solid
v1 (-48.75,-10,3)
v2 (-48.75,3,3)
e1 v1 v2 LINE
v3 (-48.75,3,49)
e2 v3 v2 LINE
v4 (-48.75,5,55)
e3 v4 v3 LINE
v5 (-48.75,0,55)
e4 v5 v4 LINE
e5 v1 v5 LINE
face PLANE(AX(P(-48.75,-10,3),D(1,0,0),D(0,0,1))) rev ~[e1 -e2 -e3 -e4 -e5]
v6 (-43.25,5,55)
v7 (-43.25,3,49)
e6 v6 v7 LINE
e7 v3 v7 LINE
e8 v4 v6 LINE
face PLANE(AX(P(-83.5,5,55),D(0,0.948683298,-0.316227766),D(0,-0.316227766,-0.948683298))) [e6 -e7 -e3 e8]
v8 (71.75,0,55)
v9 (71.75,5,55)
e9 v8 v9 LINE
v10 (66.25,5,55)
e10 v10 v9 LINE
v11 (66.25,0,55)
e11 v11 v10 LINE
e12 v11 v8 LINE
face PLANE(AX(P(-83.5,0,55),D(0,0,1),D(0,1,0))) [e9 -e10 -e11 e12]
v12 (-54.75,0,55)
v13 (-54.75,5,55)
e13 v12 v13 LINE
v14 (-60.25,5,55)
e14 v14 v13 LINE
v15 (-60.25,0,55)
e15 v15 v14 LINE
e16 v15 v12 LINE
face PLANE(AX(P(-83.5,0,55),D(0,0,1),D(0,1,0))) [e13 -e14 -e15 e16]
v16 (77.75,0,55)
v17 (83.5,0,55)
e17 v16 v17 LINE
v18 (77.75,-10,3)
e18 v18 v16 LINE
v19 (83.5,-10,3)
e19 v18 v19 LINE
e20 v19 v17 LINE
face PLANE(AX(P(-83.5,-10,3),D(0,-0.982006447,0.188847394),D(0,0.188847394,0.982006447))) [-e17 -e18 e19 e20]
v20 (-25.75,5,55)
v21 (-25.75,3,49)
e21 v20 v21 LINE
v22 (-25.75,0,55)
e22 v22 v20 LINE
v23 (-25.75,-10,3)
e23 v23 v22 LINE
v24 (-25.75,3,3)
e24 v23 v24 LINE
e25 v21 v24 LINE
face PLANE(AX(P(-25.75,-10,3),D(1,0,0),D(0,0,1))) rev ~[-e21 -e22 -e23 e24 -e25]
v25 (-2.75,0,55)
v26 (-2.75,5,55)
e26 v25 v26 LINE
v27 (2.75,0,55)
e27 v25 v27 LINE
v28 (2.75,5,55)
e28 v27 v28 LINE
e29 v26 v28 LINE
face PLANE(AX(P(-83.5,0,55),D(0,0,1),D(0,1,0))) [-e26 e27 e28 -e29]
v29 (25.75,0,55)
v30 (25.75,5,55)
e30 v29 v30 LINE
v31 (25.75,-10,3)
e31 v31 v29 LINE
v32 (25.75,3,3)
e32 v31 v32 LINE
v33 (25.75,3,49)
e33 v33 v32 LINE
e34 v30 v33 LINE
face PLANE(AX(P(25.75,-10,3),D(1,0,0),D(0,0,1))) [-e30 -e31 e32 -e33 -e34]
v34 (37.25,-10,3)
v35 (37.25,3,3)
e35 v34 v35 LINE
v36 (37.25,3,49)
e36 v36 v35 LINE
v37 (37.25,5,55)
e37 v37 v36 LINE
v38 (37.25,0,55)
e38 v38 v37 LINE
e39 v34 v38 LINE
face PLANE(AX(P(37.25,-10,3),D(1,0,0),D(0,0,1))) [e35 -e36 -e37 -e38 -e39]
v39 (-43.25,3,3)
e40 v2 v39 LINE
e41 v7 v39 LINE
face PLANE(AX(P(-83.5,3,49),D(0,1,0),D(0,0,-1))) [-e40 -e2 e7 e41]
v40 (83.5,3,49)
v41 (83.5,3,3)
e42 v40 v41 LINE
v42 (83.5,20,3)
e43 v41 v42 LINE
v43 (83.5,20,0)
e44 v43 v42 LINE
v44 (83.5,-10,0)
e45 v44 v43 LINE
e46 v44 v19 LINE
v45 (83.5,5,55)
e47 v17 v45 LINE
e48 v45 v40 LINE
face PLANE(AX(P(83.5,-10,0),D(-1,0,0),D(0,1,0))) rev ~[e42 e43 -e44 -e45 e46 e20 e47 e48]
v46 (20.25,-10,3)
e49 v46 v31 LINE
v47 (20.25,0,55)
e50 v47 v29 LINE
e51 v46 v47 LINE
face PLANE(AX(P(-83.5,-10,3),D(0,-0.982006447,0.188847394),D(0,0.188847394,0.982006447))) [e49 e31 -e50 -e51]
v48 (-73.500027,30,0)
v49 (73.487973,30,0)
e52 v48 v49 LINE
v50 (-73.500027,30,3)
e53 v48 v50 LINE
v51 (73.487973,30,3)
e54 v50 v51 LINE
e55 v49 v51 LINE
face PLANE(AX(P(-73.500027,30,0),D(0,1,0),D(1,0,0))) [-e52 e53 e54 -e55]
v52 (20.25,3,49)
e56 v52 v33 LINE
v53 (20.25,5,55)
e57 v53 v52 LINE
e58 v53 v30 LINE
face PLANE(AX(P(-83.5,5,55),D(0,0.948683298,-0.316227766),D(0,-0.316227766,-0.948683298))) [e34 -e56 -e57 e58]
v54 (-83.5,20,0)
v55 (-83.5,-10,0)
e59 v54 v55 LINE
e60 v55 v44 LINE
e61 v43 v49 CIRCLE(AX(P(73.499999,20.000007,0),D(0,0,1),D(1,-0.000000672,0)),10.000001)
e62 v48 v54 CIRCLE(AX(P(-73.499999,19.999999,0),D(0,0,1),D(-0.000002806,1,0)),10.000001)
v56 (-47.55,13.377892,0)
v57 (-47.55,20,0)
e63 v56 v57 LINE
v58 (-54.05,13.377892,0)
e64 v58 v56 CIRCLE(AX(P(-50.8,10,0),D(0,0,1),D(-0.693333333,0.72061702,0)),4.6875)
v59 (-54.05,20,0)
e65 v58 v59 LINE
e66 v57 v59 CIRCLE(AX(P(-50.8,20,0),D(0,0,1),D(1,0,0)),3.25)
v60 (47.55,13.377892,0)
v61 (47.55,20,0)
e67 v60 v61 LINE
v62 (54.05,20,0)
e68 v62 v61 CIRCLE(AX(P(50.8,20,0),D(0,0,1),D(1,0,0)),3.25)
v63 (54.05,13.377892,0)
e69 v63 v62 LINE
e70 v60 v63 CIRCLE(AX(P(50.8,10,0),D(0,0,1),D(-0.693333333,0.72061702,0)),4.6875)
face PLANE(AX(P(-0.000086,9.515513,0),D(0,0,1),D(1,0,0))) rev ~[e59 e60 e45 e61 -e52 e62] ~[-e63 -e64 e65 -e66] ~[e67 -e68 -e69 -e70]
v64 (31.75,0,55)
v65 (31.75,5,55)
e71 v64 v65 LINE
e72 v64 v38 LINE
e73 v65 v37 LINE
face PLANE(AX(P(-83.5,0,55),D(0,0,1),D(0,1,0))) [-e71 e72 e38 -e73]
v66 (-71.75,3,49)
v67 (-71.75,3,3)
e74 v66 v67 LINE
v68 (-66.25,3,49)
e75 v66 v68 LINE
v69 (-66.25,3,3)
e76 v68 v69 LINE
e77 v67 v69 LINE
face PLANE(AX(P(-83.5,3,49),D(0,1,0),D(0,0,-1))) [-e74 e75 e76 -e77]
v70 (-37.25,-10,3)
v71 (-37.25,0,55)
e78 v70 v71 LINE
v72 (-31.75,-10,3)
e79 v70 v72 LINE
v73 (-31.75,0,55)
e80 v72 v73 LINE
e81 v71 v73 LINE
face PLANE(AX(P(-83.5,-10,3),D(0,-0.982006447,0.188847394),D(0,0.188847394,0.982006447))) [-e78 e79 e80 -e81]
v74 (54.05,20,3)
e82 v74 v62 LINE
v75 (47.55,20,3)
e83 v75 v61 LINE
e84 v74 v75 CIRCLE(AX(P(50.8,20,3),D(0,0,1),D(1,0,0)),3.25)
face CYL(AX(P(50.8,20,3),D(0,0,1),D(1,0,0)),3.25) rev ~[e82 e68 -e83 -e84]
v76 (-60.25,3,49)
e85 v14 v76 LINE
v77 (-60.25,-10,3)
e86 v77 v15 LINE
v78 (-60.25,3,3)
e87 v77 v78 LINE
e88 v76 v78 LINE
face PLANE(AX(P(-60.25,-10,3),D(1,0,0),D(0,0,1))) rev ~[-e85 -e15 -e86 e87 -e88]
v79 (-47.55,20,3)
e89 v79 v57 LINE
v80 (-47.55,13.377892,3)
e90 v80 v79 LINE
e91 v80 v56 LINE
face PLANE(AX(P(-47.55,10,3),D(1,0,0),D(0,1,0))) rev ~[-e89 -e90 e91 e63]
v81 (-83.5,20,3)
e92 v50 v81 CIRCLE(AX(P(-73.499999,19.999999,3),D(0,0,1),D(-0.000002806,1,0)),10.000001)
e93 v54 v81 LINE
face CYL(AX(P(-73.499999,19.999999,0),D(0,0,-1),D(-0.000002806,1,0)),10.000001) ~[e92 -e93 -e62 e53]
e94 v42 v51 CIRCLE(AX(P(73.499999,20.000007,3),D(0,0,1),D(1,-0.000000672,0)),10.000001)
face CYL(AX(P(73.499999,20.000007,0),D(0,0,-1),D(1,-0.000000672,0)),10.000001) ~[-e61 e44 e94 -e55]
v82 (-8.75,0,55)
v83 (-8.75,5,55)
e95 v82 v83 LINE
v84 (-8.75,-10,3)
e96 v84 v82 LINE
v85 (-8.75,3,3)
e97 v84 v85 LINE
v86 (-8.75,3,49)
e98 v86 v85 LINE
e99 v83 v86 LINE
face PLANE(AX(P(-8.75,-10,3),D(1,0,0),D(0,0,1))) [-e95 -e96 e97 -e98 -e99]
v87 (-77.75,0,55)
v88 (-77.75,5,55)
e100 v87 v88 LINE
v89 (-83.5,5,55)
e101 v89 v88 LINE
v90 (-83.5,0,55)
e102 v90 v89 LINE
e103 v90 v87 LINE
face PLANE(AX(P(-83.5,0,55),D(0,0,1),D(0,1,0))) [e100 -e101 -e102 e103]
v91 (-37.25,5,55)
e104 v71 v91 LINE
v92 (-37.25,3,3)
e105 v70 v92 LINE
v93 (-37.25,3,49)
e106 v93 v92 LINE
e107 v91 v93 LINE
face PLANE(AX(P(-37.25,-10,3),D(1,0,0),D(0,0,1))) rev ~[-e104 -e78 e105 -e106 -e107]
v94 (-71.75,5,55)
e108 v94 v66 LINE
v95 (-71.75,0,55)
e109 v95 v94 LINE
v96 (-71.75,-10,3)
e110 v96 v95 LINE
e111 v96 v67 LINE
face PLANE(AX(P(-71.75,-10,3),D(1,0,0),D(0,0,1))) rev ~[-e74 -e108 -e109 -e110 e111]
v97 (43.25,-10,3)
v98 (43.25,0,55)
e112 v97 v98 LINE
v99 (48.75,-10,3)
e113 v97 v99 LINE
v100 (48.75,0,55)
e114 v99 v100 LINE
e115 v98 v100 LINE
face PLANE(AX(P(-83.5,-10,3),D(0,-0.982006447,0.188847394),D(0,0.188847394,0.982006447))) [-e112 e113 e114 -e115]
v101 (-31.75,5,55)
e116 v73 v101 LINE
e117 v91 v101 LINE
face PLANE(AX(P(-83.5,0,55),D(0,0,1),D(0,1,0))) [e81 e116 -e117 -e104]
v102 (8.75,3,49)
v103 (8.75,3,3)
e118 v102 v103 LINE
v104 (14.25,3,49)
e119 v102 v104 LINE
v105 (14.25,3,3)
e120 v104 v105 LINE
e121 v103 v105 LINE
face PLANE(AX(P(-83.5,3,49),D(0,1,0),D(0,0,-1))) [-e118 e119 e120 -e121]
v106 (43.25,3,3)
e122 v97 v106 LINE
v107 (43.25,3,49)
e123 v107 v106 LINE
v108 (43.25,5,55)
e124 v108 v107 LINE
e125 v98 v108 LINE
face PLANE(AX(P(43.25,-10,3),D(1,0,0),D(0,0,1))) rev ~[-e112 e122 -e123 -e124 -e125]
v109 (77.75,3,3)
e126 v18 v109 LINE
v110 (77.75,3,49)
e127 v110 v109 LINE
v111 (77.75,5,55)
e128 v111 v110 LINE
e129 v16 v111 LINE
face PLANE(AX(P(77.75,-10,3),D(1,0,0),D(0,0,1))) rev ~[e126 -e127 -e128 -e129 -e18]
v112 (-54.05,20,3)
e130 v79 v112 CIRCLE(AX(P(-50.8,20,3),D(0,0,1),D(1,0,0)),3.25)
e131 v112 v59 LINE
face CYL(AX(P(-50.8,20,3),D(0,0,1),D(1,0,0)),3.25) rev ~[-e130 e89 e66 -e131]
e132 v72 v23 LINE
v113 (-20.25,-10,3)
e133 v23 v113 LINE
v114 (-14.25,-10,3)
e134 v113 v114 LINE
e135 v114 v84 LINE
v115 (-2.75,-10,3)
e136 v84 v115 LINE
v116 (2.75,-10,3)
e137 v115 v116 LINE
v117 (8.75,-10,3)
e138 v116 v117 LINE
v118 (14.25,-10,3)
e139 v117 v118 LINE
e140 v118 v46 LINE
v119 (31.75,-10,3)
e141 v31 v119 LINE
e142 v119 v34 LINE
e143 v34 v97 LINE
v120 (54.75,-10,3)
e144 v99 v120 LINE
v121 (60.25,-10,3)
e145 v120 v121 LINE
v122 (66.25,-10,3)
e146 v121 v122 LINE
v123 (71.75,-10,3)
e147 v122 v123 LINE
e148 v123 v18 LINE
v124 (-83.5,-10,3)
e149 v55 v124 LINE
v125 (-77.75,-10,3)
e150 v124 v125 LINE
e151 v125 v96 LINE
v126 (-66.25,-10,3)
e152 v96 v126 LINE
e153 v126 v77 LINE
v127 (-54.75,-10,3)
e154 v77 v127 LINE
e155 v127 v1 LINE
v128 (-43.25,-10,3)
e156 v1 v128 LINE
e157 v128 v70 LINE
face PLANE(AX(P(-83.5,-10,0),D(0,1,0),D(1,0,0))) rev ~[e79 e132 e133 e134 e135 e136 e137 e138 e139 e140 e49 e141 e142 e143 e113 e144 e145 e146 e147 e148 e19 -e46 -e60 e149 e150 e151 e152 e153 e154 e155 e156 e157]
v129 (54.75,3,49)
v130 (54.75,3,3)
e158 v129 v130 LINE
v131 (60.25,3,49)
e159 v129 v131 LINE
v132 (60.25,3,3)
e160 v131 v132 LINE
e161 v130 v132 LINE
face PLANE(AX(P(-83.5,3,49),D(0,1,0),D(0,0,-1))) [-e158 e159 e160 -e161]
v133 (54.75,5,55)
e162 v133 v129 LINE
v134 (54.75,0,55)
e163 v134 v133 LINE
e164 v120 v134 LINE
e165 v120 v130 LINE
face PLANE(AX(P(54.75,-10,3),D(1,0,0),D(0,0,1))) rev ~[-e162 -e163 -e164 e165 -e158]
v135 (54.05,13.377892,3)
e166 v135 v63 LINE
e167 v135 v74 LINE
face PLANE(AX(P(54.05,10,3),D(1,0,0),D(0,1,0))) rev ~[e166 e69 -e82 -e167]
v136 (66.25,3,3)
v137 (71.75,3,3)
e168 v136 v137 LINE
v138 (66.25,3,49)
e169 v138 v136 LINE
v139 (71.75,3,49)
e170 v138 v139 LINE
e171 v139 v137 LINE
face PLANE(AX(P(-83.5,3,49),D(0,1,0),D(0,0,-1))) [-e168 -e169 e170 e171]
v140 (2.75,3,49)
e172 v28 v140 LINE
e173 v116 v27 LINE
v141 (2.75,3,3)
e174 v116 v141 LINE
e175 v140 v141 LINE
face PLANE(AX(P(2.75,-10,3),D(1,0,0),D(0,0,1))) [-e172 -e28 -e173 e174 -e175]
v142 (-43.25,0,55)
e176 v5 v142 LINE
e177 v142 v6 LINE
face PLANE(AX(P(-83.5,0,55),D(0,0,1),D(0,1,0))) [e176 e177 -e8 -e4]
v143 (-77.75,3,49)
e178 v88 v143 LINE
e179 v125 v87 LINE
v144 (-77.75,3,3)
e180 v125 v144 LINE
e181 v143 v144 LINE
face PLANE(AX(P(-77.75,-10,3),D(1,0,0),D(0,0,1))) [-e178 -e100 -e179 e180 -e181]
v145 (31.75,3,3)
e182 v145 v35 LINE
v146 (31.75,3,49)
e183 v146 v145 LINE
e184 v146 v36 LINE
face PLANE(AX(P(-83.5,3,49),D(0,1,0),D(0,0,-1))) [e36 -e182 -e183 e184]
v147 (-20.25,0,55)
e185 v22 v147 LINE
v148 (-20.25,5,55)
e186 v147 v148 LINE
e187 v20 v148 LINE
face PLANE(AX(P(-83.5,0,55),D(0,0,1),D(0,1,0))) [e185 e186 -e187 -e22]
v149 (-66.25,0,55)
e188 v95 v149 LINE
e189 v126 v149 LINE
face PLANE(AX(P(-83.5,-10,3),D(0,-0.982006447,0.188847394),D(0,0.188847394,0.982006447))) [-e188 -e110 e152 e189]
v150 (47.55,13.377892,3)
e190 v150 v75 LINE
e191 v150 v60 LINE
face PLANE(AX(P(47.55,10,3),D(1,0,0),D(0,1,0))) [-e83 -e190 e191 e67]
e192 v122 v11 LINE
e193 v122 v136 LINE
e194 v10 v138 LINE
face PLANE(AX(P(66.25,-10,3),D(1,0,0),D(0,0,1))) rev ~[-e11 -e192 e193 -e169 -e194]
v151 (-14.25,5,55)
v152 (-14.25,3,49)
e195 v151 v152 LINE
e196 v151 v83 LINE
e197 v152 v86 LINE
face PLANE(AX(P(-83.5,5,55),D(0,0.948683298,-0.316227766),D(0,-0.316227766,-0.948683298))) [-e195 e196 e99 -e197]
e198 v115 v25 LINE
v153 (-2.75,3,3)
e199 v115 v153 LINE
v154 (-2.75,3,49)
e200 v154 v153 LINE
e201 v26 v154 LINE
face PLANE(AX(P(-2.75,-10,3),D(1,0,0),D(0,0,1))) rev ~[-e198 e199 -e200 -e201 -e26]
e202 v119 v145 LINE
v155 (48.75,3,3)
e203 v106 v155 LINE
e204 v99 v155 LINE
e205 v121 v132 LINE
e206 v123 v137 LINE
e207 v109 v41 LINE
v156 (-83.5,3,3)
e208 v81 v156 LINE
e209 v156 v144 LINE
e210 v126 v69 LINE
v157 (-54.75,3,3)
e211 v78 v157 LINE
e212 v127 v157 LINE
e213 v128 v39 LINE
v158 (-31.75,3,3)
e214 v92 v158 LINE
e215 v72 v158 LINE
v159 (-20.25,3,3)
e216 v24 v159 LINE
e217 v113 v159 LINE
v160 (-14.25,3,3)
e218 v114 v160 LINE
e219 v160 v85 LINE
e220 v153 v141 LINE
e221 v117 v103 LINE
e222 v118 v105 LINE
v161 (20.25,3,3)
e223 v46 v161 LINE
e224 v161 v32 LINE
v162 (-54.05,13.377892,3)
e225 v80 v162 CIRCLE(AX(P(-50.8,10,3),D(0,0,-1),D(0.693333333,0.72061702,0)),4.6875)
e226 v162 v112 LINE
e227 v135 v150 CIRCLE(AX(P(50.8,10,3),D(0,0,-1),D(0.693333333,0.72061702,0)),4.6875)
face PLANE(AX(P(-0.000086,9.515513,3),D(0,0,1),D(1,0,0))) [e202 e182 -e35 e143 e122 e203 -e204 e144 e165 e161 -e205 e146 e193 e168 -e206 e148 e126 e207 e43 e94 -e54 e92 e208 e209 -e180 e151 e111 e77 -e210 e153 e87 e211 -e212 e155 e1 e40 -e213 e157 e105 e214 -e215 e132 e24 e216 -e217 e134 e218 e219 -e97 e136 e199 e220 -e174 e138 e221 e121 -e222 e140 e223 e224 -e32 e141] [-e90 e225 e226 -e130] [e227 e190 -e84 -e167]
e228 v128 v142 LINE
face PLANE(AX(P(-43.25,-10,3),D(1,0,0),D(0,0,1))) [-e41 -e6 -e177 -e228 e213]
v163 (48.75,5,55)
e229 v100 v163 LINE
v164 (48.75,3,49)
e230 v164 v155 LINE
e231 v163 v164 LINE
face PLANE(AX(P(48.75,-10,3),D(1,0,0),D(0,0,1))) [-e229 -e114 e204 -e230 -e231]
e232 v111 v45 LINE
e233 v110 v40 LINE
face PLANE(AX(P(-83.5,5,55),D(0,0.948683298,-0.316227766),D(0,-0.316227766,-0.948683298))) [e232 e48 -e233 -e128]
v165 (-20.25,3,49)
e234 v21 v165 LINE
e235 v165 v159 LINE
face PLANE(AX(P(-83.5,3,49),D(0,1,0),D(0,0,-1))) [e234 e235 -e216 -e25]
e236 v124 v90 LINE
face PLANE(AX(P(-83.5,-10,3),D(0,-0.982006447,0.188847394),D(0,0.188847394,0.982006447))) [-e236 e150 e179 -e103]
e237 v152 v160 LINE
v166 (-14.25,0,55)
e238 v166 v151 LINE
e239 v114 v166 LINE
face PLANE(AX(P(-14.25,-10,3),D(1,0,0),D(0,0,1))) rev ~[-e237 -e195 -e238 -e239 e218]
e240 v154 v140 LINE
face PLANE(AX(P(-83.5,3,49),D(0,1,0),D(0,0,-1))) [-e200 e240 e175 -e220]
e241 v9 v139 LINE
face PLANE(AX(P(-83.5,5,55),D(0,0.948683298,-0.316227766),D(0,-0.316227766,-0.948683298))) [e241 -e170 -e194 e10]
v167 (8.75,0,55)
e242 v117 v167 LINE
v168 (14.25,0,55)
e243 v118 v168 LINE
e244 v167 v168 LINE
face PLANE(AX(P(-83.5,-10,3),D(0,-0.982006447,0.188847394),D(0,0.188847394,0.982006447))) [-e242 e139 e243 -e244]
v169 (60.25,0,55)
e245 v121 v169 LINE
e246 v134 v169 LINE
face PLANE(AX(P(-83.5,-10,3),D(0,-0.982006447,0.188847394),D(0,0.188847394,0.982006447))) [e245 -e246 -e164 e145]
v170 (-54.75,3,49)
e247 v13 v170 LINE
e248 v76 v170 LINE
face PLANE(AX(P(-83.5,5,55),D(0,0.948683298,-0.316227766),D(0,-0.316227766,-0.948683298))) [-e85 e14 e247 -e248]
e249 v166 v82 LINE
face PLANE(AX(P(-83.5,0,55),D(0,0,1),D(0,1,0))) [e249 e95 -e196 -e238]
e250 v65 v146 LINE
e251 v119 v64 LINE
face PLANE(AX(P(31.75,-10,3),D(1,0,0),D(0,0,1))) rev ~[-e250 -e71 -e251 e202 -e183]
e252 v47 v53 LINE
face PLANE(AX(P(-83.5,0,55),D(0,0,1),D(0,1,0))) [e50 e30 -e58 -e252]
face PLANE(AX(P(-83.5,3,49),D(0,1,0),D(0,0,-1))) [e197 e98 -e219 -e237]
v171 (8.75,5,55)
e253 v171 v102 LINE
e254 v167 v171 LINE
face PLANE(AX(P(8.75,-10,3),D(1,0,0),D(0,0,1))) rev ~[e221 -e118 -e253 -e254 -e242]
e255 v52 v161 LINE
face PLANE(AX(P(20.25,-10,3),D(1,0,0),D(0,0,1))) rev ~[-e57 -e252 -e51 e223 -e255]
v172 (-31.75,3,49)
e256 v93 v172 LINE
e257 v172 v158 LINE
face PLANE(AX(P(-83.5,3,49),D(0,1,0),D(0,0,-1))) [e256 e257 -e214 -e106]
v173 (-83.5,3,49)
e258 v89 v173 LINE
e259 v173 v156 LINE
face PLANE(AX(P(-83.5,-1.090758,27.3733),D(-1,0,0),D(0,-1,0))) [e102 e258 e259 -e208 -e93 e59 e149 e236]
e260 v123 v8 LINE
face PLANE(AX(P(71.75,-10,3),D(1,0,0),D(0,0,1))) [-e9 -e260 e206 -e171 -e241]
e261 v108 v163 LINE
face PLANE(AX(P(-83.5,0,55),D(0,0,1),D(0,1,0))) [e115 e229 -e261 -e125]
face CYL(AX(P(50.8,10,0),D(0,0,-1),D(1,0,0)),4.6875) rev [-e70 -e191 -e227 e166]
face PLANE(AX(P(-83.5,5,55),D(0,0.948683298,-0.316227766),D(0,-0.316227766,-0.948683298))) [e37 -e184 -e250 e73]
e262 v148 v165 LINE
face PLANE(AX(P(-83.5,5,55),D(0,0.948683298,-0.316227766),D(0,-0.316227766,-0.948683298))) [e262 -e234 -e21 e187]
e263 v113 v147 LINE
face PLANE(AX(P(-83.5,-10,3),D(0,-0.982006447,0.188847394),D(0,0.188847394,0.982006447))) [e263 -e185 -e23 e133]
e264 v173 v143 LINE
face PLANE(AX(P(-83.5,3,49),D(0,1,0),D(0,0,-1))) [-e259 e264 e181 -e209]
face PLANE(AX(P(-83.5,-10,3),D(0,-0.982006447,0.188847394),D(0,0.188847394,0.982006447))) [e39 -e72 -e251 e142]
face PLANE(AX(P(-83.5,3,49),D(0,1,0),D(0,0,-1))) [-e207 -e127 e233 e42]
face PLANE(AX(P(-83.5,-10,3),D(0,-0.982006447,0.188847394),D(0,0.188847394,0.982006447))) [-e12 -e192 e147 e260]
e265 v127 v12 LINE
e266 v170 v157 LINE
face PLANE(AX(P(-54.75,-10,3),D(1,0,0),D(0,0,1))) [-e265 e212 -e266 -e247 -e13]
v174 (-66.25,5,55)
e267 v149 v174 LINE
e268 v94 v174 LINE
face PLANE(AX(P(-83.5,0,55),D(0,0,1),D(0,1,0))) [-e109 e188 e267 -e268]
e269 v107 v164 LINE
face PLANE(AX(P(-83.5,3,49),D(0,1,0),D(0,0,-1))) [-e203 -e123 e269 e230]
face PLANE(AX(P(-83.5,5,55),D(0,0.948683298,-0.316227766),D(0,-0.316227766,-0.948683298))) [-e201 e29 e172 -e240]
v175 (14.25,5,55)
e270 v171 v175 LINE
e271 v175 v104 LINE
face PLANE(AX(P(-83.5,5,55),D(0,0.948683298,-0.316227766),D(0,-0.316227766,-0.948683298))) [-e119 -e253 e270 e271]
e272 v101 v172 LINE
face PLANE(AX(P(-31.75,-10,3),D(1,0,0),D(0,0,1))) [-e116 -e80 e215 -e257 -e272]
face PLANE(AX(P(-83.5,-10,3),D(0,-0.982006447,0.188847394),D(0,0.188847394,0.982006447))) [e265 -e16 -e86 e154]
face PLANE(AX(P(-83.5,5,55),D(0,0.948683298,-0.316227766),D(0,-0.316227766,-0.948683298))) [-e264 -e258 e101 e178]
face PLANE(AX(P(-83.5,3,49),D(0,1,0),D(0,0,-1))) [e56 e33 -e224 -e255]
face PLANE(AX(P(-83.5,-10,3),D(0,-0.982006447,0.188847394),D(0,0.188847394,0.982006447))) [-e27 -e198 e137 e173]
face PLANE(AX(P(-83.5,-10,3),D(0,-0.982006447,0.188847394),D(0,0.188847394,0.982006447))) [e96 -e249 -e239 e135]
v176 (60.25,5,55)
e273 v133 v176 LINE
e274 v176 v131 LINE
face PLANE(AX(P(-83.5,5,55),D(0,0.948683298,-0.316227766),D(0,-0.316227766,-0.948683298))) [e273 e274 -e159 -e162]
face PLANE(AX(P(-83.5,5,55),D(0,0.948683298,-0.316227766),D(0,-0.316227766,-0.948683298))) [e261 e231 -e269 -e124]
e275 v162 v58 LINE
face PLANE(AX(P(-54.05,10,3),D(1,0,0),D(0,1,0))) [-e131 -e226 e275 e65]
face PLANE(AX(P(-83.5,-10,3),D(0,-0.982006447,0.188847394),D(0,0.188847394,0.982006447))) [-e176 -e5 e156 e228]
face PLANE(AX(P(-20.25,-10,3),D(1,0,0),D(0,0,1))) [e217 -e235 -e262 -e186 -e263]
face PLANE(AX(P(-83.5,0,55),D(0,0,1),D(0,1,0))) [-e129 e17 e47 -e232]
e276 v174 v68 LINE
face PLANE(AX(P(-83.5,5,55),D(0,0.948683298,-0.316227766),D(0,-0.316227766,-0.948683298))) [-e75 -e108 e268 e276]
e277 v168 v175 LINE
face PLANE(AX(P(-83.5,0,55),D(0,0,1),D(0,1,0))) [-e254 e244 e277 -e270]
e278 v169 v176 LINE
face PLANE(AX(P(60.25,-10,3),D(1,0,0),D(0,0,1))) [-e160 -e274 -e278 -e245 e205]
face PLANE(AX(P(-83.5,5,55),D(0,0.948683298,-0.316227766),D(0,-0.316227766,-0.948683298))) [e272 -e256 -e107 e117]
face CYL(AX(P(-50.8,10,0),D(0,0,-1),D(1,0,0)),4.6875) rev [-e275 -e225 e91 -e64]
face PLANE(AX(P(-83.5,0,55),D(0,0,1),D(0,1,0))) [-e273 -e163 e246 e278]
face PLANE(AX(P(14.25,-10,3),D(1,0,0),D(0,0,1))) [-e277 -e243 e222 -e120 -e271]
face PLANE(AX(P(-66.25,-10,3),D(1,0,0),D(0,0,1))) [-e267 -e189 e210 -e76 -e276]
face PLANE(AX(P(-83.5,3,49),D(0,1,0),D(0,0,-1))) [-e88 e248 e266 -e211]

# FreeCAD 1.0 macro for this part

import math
import FreeCAD as App
import Part
import Sketcher

V = App.Vector

doc = App.newDocument("Part")
body = doc.addObject("PartDesign::Body", "Body")
body.AllowCompound = True

# Sketch on XY plane
sketch1 = body.newObject("Sketcher::SketchObject", "Sketch")
sketch1.AttachmentSupport = (doc.getObject("XY_Plane"), [""])
sketch1.MapMode = "FlatFace"
sketch1.addGeometry(Part.LineSegment(V(-77.75, 55, 0), V(-77.75, 3, 0)), False)
sketch1.addGeometry(Part.LineSegment(V(-77.75, 3, 0), V(-71.75, 3, 0)), False)
sketch1.addGeometry(Part.LineSegment(V(-71.75, 3, 0), V(-71.75, 55, 0)), False)
sketch1.addGeometry(Part.LineSegment(V(-71.75, 55, 0), V(-77.75, 55, 0)), False)
sketch1.addGeometry(Part.LineSegment(V(-66.25, 55, 0), V(-66.25, 3, 0)), False)
sketch1.addGeometry(Part.LineSegment(V(-66.25, 3, 0), V(-60.25, 3, 0)), False)
sketch1.addGeometry(Part.LineSegment(V(-60.25, 3, 0), V(-60.25, 55, 0)), False)
sketch1.addGeometry(Part.LineSegment(V(-60.25, 55, 0), V(-66.25, 55, 0)), False)
sketch1.addGeometry(Part.LineSegment(V(-54.75, 55, 0), V(-54.75, 3, 0)), False)
sketch1.addGeometry(Part.LineSegment(V(-54.75, 3, 0), V(-48.75, 3, 0)), False)
sketch1.addGeometry(Part.LineSegment(V(-48.75, 3, 0), V(-48.75, 55, 0)), False)
sketch1.addGeometry(Part.LineSegment(V(-48.75, 55, 0), V(-54.75, 55, 0)), False)
sketch1.addGeometry(Part.LineSegment(V(-43.25, 55, 0), V(-43.25, 3, 0)), False)
sketch1.addGeometry(Part.LineSegment(V(-43.25, 3, 0), V(-37.25, 3, 0)), False)
sketch1.addGeometry(Part.LineSegment(V(-37.25, 3, 0), V(-37.25, 55, 0)), False)
sketch1.addGeometry(Part.LineSegment(V(-37.25, 55, 0), V(-43.25, 55, 0)), False)
sketch1.addGeometry(Part.LineSegment(V(-31.75, 55, 0), V(-31.75, 3, 0)), False)
sketch1.addGeometry(Part.LineSegment(V(-31.75, 3, 0), V(-25.75, 3, 0)), False)
sketch1.addGeometry(Part.LineSegment(V(-25.75, 3, 0), V(-25.75, 55, 0)), False)
sketch1.addGeometry(Part.LineSegment(V(-25.75, 55, 0), V(-31.75, 55, 0)), False)
sketch1.addGeometry(Part.LineSegment(V(-20.25, 55, 0), V(-20.25, 3, 0)), False)
sketch1.addGeometry(Part.LineSegment(V(-20.25, 3, 0), V(-14.25, 3, 0)), False)
sketch1.addGeometry(Part.LineSegment(V(-14.25, 3, 0), V(-14.25, 55, 0)), False)
sketch1.addGeometry(Part.LineSegment(V(-14.25, 55, 0), V(-20.25, 55, 0)), False)
sketch1.addGeometry(Part.LineSegment(V(-8.75, 55, 0), V(-8.75, 3, 0)), False)
sketch1.addGeometry(Part.LineSegment(V(-8.75, 3, 0), V(-2.75, 3, 0)), False)
sketch1.addGeometry(Part.LineSegment(V(-2.75, 3, 0), V(-2.75, 55, 0)), False)
sketch1.addGeometry(Part.LineSegment(V(-2.75, 55, 0), V(-8.75, 55, 0)), False)
sketch1.addGeometry(Part.LineSegment(V(2.75, 55, 0), V(2.75, 3, 0)), False)
sketch1.addGeometry(Part.LineSegment(V(2.75, 3, 0), V(8.75, 3, 0)), False)
sketch1.addGeometry(Part.LineSegment(V(8.75, 3, 0), V(8.75, 55, 0)), False)
sketch1.addGeometry(Part.LineSegment(V(8.75, 55, 0), V(2.75, 55, 0)), False)
sketch1.addGeometry(Part.LineSegment(V(14.25, 55, 0), V(14.25, 3, 0)), False)
sketch1.addGeometry(Part.LineSegment(V(14.25, 3, 0), V(20.25, 3, 0)), False)
sketch1.addGeometry(Part.LineSegment(V(20.25, 3, 0), V(20.25, 55, 0)), False)
sketch1.addGeometry(Part.LineSegment(V(20.25, 55, 0), V(14.25, 55, 0)), False)
sketch1.addGeometry(Part.LineSegment(V(25.75, 55, 0), V(25.75, 3, 0)), False)
sketch1.addGeometry(Part.LineSegment(V(25.75, 3, 0), V(31.75, 3, 0)), False)
sketch1.addGeometry(Part.LineSegment(V(31.75, 3, 0), V(31.75, 55, 0)), False)
sketch1.addGeometry(Part.LineSegment(V(31.75, 55, 0), V(25.75, 55, 0)), False)
sketch1.addGeometry(Part.LineSegment(V(37.25, 55, 0), V(37.25, 3, 0)), False)
sketch1.addGeometry(Part.LineSegment(V(37.25, 3, 0), V(43.25, 3, 0)), False)
sketch1.addGeometry(Part.LineSegment(V(43.25, 3, 0), V(43.25, 55, 0)), False)
sketch1.addGeometry(Part.LineSegment(V(43.25, 55, 0), V(37.25, 55, 0)), False)
sketch1.addGeometry(Part.LineSegment(V(48.75, 55, 0), V(48.75, 3, 0)), False)
sketch1.addGeometry(Part.LineSegment(V(48.75, 3, 0), V(54.75, 3, 0)), False)
sketch1.addGeometry(Part.LineSegment(V(54.75, 3, 0), V(54.75, 55, 0)), False)
sketch1.addGeometry(Part.LineSegment(V(54.75, 55, 0), V(48.75, 55, 0)), False)
sketch1.addGeometry(Part.LineSegment(V(60.25, 55, 0), V(60.25, 3, 0)), False)
sketch1.addGeometry(Part.LineSegment(V(60.25, 3, 0), V(66.25, 3, 0)), False)
sketch1.addGeometry(Part.LineSegment(V(66.25, 3, 0), V(66.25, 55, 0)), False)
sketch1.addGeometry(Part.LineSegment(V(66.25, 55, 0), V(60.25, 55, 0)), False)
sketch1.addGeometry(Part.LineSegment(V(71.75, 55, 0), V(71.75, 3, 0)), False)
sketch1.addGeometry(Part.LineSegment(V(71.75, 3, 0), V(77.75, 3, 0)), False)
sketch1.addGeometry(Part.LineSegment(V(77.75, 3, 0), V(77.75, 55, 0)), False)
sketch1.addGeometry(Part.LineSegment(V(77.75, 55, 0), V(71.75, 55, 0)), False)
sketch1.addConstraint(Sketcher.Constraint("Coincident", 0, 2, 1, 1))
sketch1.addConstraint(Sketcher.Constraint("Coincident", 1, 2, 2, 1))
sketch1.addConstraint(Sketcher.Constraint("Coincident", 2, 2, 3, 1))
sketch1.addConstraint(Sketcher.Constraint("Coincident", 3, 2, 0, 1))
sketch1.addConstraint(Sketcher.Constraint("Coincident", 4, 2, 5, 1))
sketch1.addConstraint(Sketcher.Constraint("Coincident", 5, 2, 6, 1))
sketch1.addConstraint(Sketcher.Constraint("Coincident", 6, 2, 7, 1))
sketch1.addConstraint(Sketcher.Constraint("Coincident", 7, 2, 4, 1))
sketch1.addConstraint(Sketcher.Constraint("Coincident", 8, 2, 9, 1))
sketch1.addConstraint(Sketcher.Constraint("Coincident", 9, 2, 10, 1))
sketch1.addConstraint(Sketcher.Constraint("Coincident", 10, 2, 11, 1))
sketch1.addConstraint(Sketcher.Constraint("Coincident", 11, 2, 8, 1))
sketch1.addConstraint(Sketcher.Constraint("Coincident", 12, 2, 13, 1))
sketch1.addConstraint(Sketcher.Constraint("Coincident", 13, 2, 14, 1))
sketch1.addConstraint(Sketcher.Constraint("Coincident", 14, 2, 15, 1))
sketch1.addConstraint(Sketcher.Constraint("Coincident", 15, 2, 12, 1))
sketch1.addConstraint(Sketcher.Constraint("Coincident", 16, 2, 17, 1))
sketch1.addConstraint(Sketcher.Constraint("Coincident", 17, 2, 18, 1))
sketch1.addConstraint(Sketcher.Constraint("Coincident", 18, 2, 19, 1))
sketch1.addConstraint(Sketcher.Constraint("Coincident", 19, 2, 16, 1))
sketch1.addConstraint(Sketcher.Constraint("Coincident", 20, 2, 21, 1))
sketch1.addConstraint(Sketcher.Constraint("Coincident", 21, 2, 22, 1))
sketch1.addConstraint(Sketcher.Constraint("Coincident", 22, 2, 23, 1))
sketch1.addConstraint(Sketcher.Constraint("Coincident", 23, 2, 20, 1))
sketch1.addConstraint(Sketcher.Constraint("Coincident", 24, 2, 25, 1))
sketch1.addConstraint(Sketcher.Constraint("Coincident", 25, 2, 26, 1))
sketch1.addConstraint(Sketcher.Constraint("Coincident", 26, 2, 27, 1))
sketch1.addConstraint(Sketcher.Constraint("Coincident", 27, 2, 24, 1))
sketch1.addConstraint(Sketcher.Constraint("Coincident", 28, 2, 29, 1))
sketch1.addConstraint(Sketcher.Constraint("Coincident", 29, 2, 30, 1))
sketch1.addConstraint(Sketcher.Constraint("Coincident", 30, 2, 31, 1))
sketch1.addConstraint(Sketcher.Constraint("Coincident", 31, 2, 28, 1))
sketch1.addConstraint(Sketcher.Constraint("Coincident", 32, 2, 33, 1))
sketch1.addConstraint(Sketcher.Constraint("Coincident", 33, 2, 34, 1))
sketch1.addConstraint(Sketcher.Constraint("Coincident", 34, 2, 35, 1))
sketch1.addConstraint(Sketcher.Constraint("Coincident", 35, 2, 32, 1))
sketch1.addConstraint(Sketcher.Constraint("Coincident", 36, 2, 37, 1))
sketch1.addConstraint(Sketcher.Constraint("Coincident", 37, 2, 38, 1))
sketch1.addConstraint(Sketcher.Constraint("Coincident", 38, 2, 39, 1))
sketch1.addConstraint(Sketcher.Constraint("Coincident", 39, 2, 36, 1))
sketch1.addConstraint(Sketcher.Constraint("Coincident", 40, 2, 41, 1))
sketch1.addConstraint(Sketcher.Constraint("Coincident", 41, 2, 42, 1))
sketch1.addConstraint(Sketcher.Constraint("Coincident", 42, 2, 43, 1))
sketch1.addConstraint(Sketcher.Constraint("Coincident", 43, 2, 40, 1))
sketch1.addConstraint(Sketcher.Constraint("Coincident", 44, 2, 45, 1))
sketch1.addConstraint(Sketcher.Constraint("Coincident", 45, 2, 46, 1))
sketch1.addConstraint(Sketcher.Constraint("Coincident", 46, 2, 47, 1))
sketch1.addConstraint(Sketcher.Constraint("Coincident", 47, 2, 44, 1))
sketch1.addConstraint(Sketcher.Constraint("Coincident", 48, 2, 49, 1))
sketch1.addConstraint(Sketcher.Constraint("Coincident", 49, 2, 50, 1))
sketch1.addConstraint(Sketcher.Constraint("Coincident", 50, 2, 51, 1))
sketch1.addConstraint(Sketcher.Constraint("Coincident", 51, 2, 48, 1))
sketch1.addConstraint(Sketcher.Constraint("Coincident", 52, 2, 53, 1))
sketch1.addConstraint(Sketcher.Constraint("Coincident", 53, 2, 54, 1))
sketch1.addConstraint(Sketcher.Constraint("Coincident", 54, 2, 55, 1))
sketch1.addConstraint(Sketcher.Constraint("Coincident", 55, 2, 52, 1))
sketch1.addConstraint(Sketcher.Constraint("Vertical", 0))
sketch1.addConstraint(Sketcher.Constraint("Horizontal", 1))
sketch1.addConstraint(Sketcher.Constraint("Vertical", 2))
sketch1.addConstraint(Sketcher.Constraint("Horizontal", 3))
sketch1.addConstraint(Sketcher.Constraint("Vertical", 4))
sketch1.addConstraint(Sketcher.Constraint("Horizontal", 5))
sketch1.addConstraint(Sketcher.Constraint("Vertical", 6))
sketch1.addConstraint(Sketcher.Constraint("Horizontal", 7))
sketch1.addConstraint(Sketcher.Constraint("Vertical", 8))
sketch1.addConstraint(Sketcher.Constraint("Horizontal", 9))
sketch1.addConstraint(Sketcher.Constraint("Vertical", 10))
sketch1.addConstraint(Sketcher.Constraint("Horizontal", 11))
sketch1.addConstraint(Sketcher.Constraint("Vertical", 12))
sketch1.addConstraint(Sketcher.Constraint("Horizontal", 13))
sketch1.addConstraint(Sketcher.Constraint("Vertical", 14))
sketch1.addConstraint(Sketcher.Constraint("Horizontal", 15))
sketch1.addConstraint(Sketcher.Constraint("Vertical", 16))
sketch1.addConstraint(Sketcher.Constraint("Horizontal", 17))
sketch1.addConstraint(Sketcher.Constraint("Vertical", 18))
sketch1.addConstraint(Sketcher.Constraint("Horizontal", 19))
sketch1.addConstraint(Sketcher.Constraint("Vertical", 20))
sketch1.addConstraint(Sketcher.Constraint("Horizontal", 21))
sketch1.addConstraint(Sketcher.Constraint("Vertical", 22))
sketch1.addConstraint(Sketcher.Constraint("Horizontal", 23))
sketch1.addConstraint(Sketcher.Constraint("Vertical", 24))
sketch1.addConstraint(Sketcher.Constraint("Horizontal", 25))
sketch1.addConstraint(Sketcher.Constraint("Vertical", 26))
sketch1.addConstraint(Sketcher.Constraint("Horizontal", 27))
sketch1.addConstraint(Sketcher.Constraint("Vertical", 28))
sketch1.addConstraint(Sketcher.Constraint("Horizontal", 29))
sketch1.addConstraint(Sketcher.Constraint("Vertical", 30))
sketch1.addConstraint(Sketcher.Constraint("Horizontal", 31))
sketch1.addConstraint(Sketcher.Constraint("Vertical", 32))
sketch1.addConstraint(Sketcher.Constraint("Horizontal", 33))
sketch1.addConstraint(Sketcher.Constraint("Vertical", 34))
sketch1.addConstraint(Sketcher.Constraint("Horizontal", 35))
sketch1.addConstraint(Sketcher.Constraint("Vertical", 36))
sketch1.addConstraint(Sketcher.Constraint("Horizontal", 37))
sketch1.addConstraint(Sketcher.Constraint("Vertical", 38))
sketch1.addConstraint(Sketcher.Constraint("Horizontal", 39))
sketch1.addConstraint(Sketcher.Constraint("Vertical", 40))
sketch1.addConstraint(Sketcher.Constraint("Horizontal", 41))
sketch1.addConstraint(Sketcher.Constraint("Vertical", 42))
sketch1.addConstraint(Sketcher.Constraint("Horizontal", 43))
sketch1.addConstraint(Sketcher.Constraint("Vertical", 44))
sketch1.addConstraint(Sketcher.Constraint("Horizontal", 45))
sketch1.addConstraint(Sketcher.Constraint("Vertical", 46))
sketch1.addConstraint(Sketcher.Constraint("Horizontal", 47))
sketch1.addConstraint(Sketcher.Constraint("Vertical", 48))
sketch1.addConstraint(Sketcher.Constraint("Horizontal", 49))
sketch1.addConstraint(Sketcher.Constraint("Vertical", 50))
sketch1.addConstraint(Sketcher.Constraint("Horizontal", 51))
sketch1.addConstraint(Sketcher.Constraint("Vertical", 52))
sketch1.addConstraint(Sketcher.Constraint("Horizontal", 53))
sketch1.addConstraint(Sketcher.Constraint("Vertical", 54))
sketch1.addConstraint(Sketcher.Constraint("Horizontal", 55))
sketch1.addConstraint(Sketcher.Constraint("Symmetric", 25, 2, 28, 2, -2))
sketch1.addConstraint(Sketcher.Constraint("Symmetric", 27, 2, 30, 2, -2))
sketch1.addConstraint(Sketcher.Constraint("Symmetric", 21, 2, 32, 2, -2))
sketch1.addConstraint(Sketcher.Constraint("Symmetric", 23, 2, 34, 2, -2))
sketch1.addConstraint(Sketcher.Constraint("Symmetric", 17, 2, 36, 2, -2))
sketch1.addConstraint(Sketcher.Constraint("Symmetric", 19, 2, 38, 2, -2))
sketch1.addConstraint(Sketcher.Constraint("Symmetric", 13, 2, 40, 2, -2))
sketch1.addConstraint(Sketcher.Constraint("Symmetric", 15, 2, 42, 2, -2))
sketch1.addConstraint(Sketcher.Constraint("Symmetric", 9, 2, 44, 2, -2))
sketch1.addConstraint(Sketcher.Constraint("Symmetric", 11, 2, 46, 2, -2))
sketch1.addConstraint(Sketcher.Constraint("Symmetric", 5, 2, 48, 2, -2))
sketch1.addConstraint(Sketcher.Constraint("Symmetric", 7, 2, 50, 2, -2))
sketch1.addConstraint(Sketcher.Constraint("Symmetric", 1, 2, 52, 2, -2))
sketch1.addConstraint(Sketcher.Constraint("Symmetric", 3, 2, 54, 2, -2))
sketch1.addConstraint(Sketcher.Constraint("Horizontal", 1, 2, 4, 2))
sketch1.addConstraint(Sketcher.Constraint("Horizontal", 3, 2, 6, 2))
sketch1.addConstraint(Sketcher.Constraint("Horizontal", 5, 2, 8, 2))
sketch1.addConstraint(Sketcher.Constraint("Horizontal", 7, 2, 10, 2))
sketch1.addConstraint(Sketcher.Constraint("Horizontal", 9, 2, 12, 2))
sketch1.addConstraint(Sketcher.Constraint("Horizontal", 11, 2, 14, 2))
sketch1.addConstraint(Sketcher.Constraint("Horizontal", 13, 2, 16, 2))
sketch1.addConstraint(Sketcher.Constraint("Horizontal", 15, 2, 18, 2))
sketch1.addConstraint(Sketcher.Constraint("Horizontal", 17, 2, 20, 2))
sketch1.addConstraint(Sketcher.Constraint("Horizontal", 19, 2, 22, 2))
sketch1.addConstraint(Sketcher.Constraint("Horizontal", 21, 2, 24, 2))
sketch1.addConstraint(Sketcher.Constraint("Horizontal", 23, 2, 26, 2))
sketch1.addConstraint(Sketcher.Constraint("Equal", 3, 5))
sketch1.addConstraint(Sketcher.Constraint("Equal", 7, 9))
sketch1.addConstraint(Sketcher.Constraint("Equal", 11, 13))
sketch1.addConstraint(Sketcher.Constraint("Equal", 15, 17))
sketch1.addConstraint(Sketcher.Constraint("Equal", 19, 21))
sketch1.addConstraint(Sketcher.Constraint("Equal", 23, 25))
sketch1.addConstraint(Sketcher.Constraint("DistanceX", 1, 1, 1, 2, 6.0))
sketch1.addConstraint(Sketcher.Constraint("DistanceY", 0, 2, 0, 1, 52.0))
sketch1.addConstraint(Sketcher.Constraint("DistanceY", -1, 1, 0, 2, 3.0))
sketch1.addConstraint(Sketcher.Constraint("DistanceX", 1, 2, 8, 2, 17.0))
sketch1.addConstraint(Sketcher.Constraint("DistanceX", 5, 2, 12, 2, 17.0))
sketch1.addConstraint(Sketcher.Constraint("DistanceX", 9, 2, 16, 2, 17.0))
sketch1.addConstraint(Sketcher.Constraint("DistanceX", 13, 2, 20, 2, 17.0))
sketch1.addConstraint(Sketcher.Constraint("DistanceX", 17, 2, 24, 2, 17.0))
sketch1.addConstraint(Sketcher.Constraint("DistanceX", 21, 2, 28, 2, 17.0))
sketch1.addConstraint(Sketcher.Constraint("DistanceX", 1, 2, 4, 2, 5.5))
pad1 = body.newObject("PartDesign::Pad", "Pad")
pad1.Profile = sketch1
pad1.Length = 15
pad1.Reversed = True
body2 = doc.addObject("PartDesign::Body", "Body001")
body2.AllowCompound = True
doc.recompute()

body.Placement = App.Placement(V(0, 0, 0), App.Rotation(V(1, 0, 0), 90))
boolean = body2.newObject("PartDesign::Boolean", "Boolean")
boolean.Type = "Fuse"
boolean.addObjects([body])
body3 = doc.addObject("PartDesign::Body", "Body002")
body3.AllowCompound = True
doc.recompute()

body2.Placement = App.Placement(V(0, -10, 0), App.Rotation(V(0, 0, 1), 0))
boolean2 = body3.newObject("PartDesign::Boolean", "Boolean001")
boolean2.Type = "Fuse"
boolean2.addObjects([body2])
body4 = doc.addObject("PartDesign::Body", "Body003")
body4.AllowCompound = True

# Sketch on YZ plane
sketch2 = body4.newObject("Sketcher::SketchObject", "Sketch001")
sketch2.AttachmentSupport = (doc.getObject("YZ_Plane003"), [""])
sketch2.MapMode = "FlatFace"
sketch2.AttachmentOffset = App.Placement(V(0, 0, -83.5), App.Rotation())
sketch2.addGeometry(Part.LineSegment(V(0, 55, 0), V(5, 55, 0)), False)
sketch2.addGeometry(Part.LineSegment(V(5, 55, 0), V(3, 49, 0)), False)
sketch2.addGeometry(Part.LineSegment(V(3, 49, 0), V(3, 3, 0)), False)
sketch2.addGeometry(Part.LineSegment(V(3, 3, 0), V(-10, 3, 0)), False)
sketch2.addGeometry(Part.LineSegment(V(-10, 3, 0), V(0, 55, 0)), False)
sketch2.addConstraint(Sketcher.Constraint("Coincident", 0, 2, 1, 1))
sketch2.addConstraint(Sketcher.Constraint("Coincident", 1, 2, 2, 1))
sketch2.addConstraint(Sketcher.Constraint("Coincident", 2, 2, 3, 1))
sketch2.addConstraint(Sketcher.Constraint("Coincident", 3, 2, 4, 1))
sketch2.addConstraint(Sketcher.Constraint("Coincident", 4, 2, 0, 1))
sketch2.addConstraint(Sketcher.Constraint("Horizontal", 0))
sketch2.addConstraint(Sketcher.Constraint("Vertical", 2))
sketch2.addConstraint(Sketcher.Constraint("Horizontal", 3))
sketch2.addConstraint(Sketcher.Constraint("PointOnObject", 4, 2, -2))
sketch2.addConstraint(Sketcher.Constraint("DistanceX", 0, 1, 0, 2, 5.0))
sketch2.addConstraint(Sketcher.Constraint("DistanceX", 3, 2, 3, 1, 13.0))
sketch2.addConstraint(Sketcher.Constraint("DistanceY", 2, 2, 2, 1, 46.0))
sketch2.addConstraint(Sketcher.Constraint("DistanceY", -1, 1, 0, 2, 55.0))
sketch2.addConstraint(Sketcher.Constraint("DistanceX", -1, 1, 1, 2, 3.0))
sketch2.addConstraint(Sketcher.Constraint("DistanceY", -1, 1, 1, 2, 49.0))
pad2 = body4.newObject("PartDesign::Pad", "Pad001")
pad2.Profile = sketch2
pad2.Length = 167
doc.recompute()

boolean3 = body4.newObject("PartDesign::Boolean", "Boolean002")
boolean3.Type = "Cut"
boolean3.addObjects([body3])
body5 = doc.addObject("PartDesign::Body", "Body004")
body5.AllowCompound = True

# Sketch on XY plane
sketch3 = body5.newObject("Sketcher::SketchObject", "Sketch002")
sketch3.AttachmentSupport = (doc.getObject("XY_Plane004"), [""])
sketch3.MapMode = "FlatFace"
sketch3.AttachmentOffset = App.Placement(V(0, 0, 3), App.Rotation())
sketch3.addGeometry(Part.ArcOfCircle(Part.Circle(V(-50.8, 10, 0), V(0, 0, 1), 3.25), math.radians(180), math.radians(360)), False)
sketch3.addGeometry(Part.LineSegment(V(-47.55, 10, 0), V(-47.55, 20, 0)), False)
sketch3.addGeometry(Part.ArcOfCircle(Part.Circle(V(-50.8, 20, 0), V(0, 0, 1), 3.25), math.radians(0), math.radians(180)), False)
sketch3.addGeometry(Part.LineSegment(V(-54.05, 20, 0), V(-54.05, 10, 0)), False)
sketch3.addGeometry(Part.ArcOfCircle(Part.Circle(V(50.8, 10, 0), V(0, 0, 1), 3.25), math.radians(180), math.radians(360)), False)
sketch3.addGeometry(Part.LineSegment(V(54.05, 10, 0), V(54.05, 20, 0)), False)
sketch3.addGeometry(Part.ArcOfCircle(Part.Circle(V(50.8, 20, 0), V(0, 0, 1), 3.25), math.radians(0), math.radians(180)), False)
sketch3.addGeometry(Part.LineSegment(V(47.55, 20, 0), V(47.55, 10, 0)), False)
sketch3.addConstraint(Sketcher.Constraint("Tangent", 0, 2, 1, 1))
sketch3.addConstraint(Sketcher.Constraint("Tangent", 1, 2, 2, 1))
sketch3.addConstraint(Sketcher.Constraint("Tangent", 2, 2, 3, 1))
sketch3.addConstraint(Sketcher.Constraint("Tangent", 3, 2, 0, 1))
sketch3.addConstraint(Sketcher.Constraint("Tangent", 4, 2, 5, 1))
sketch3.addConstraint(Sketcher.Constraint("Tangent", 5, 2, 6, 1))
sketch3.addConstraint(Sketcher.Constraint("Tangent", 6, 2, 7, 1))
sketch3.addConstraint(Sketcher.Constraint("Tangent", 7, 2, 4, 1))
sketch3.addConstraint(Sketcher.Constraint("Vertical", 1))
sketch3.addConstraint(Sketcher.Constraint("Vertical", 3))
sketch3.addConstraint(Sketcher.Constraint("Vertical", 5))
sketch3.addConstraint(Sketcher.Constraint("Vertical", 7))
sketch3.addConstraint(Sketcher.Constraint("Equal", 2, 4))
sketch3.addConstraint(Sketcher.Constraint("Symmetric", 0, 3, 4, 3, -2))
sketch3.addConstraint(Sketcher.Constraint("Horizontal", 2, 3, 6, 3))
sketch3.addConstraint(Sketcher.Constraint("DistanceY", 1, 1, 1, 2, 10.0))
sketch3.addConstraint(Sketcher.Constraint("Radius", 0, 3.25))
sketch3.addConstraint(Sketcher.Constraint("DistanceY", -1, 1, 0, 3, 10.0))
sketch3.addConstraint(Sketcher.Constraint("DistanceX", 0, 3, -1, 1, 50.8))
pad3 = body5.newObject("PartDesign::Pad", "Pad002")
pad3.Profile = sketch3
pad3.Length = 3
pad3.Reversed = True
body6 = doc.addObject("PartDesign::Body", "Body005")

# Sketch on XY plane
sketch4 = body6.newObject("Sketcher::SketchObject", "Sketch003")
sketch4.AttachmentSupport = (doc.getObject("XY_Plane005"), [""])
sketch4.MapMode = "FlatFace"
sketch4.addGeometry(Part.LineSegment(V(-83.5, 20, 0), V(-83.5, -10, 0)), False)
sketch4.addGeometry(Part.LineSegment(V(-83.5, -10, 0), V(83.5, -10, 0)), False)
sketch4.addGeometry(Part.LineSegment(V(83.5, -10, 0), V(83.5, 20, 0)), False)
sketch4.addGeometry(Part.ArcOfCircle(Part.Circle(V(73.499999, 20.000007, 0), V(0, 0, 1), 10.000001), math.radians(-0.000038), math.radians(90.068907)), False)
sketch4.addGeometry(Part.LineSegment(V(73.487973, 30, 0), V(-73.500027, 30, 0)), False)
sketch4.addGeometry(Part.ArcOfCircle(Part.Circle(V(-73.499999, 19.999999, 0), V(0, 0, 1), 10.000001), math.radians(90.000161), math.radians(179.999994)), False)
sketch4.addGeometry(Part.Circle(V(-50.8, 10, 0), V(0, 0, 1), 4.6875), False)
sketch4.addGeometry(Part.Circle(V(50.8, 10, 0), V(0, 0, 1), 4.6875), False)
sketch4.addConstraint(Sketcher.Constraint("Coincident", 0, 2, 1, 1))
sketch4.addConstraint(Sketcher.Constraint("Coincident", 1, 2, 2, 1))
sketch4.addConstraint(Sketcher.Constraint("Tangent", 2, 2, 3, 1))
sketch4.addConstraint(Sketcher.Constraint("Coincident", 3, 2, 4, 1))
sketch4.addConstraint(Sketcher.Constraint("Coincident", 4, 2, 5, 1))
sketch4.addConstraint(Sketcher.Constraint("Tangent", 5, 2, 0, 1))
sketch4.addConstraint(Sketcher.Constraint("Vertical", 0))
sketch4.addConstraint(Sketcher.Constraint("Horizontal", 1))
sketch4.addConstraint(Sketcher.Constraint("Vertical", 2))
sketch4.addConstraint(Sketcher.Constraint("Horizontal", 4))
sketch4.addConstraint(Sketcher.Constraint("Equal", 3, 5))
sketch4.addConstraint(Sketcher.Constraint("Equal", 6, 7))
sketch4.addConstraint(Sketcher.Constraint("Symmetric", 6, 3, 7, 3, -2))
sketch4.addConstraint(Sketcher.Constraint("Radius", 3, 10.000001))
sketch4.addConstraint(Sketcher.Constraint("DistanceX", 1, 1, 1, 2, 167.0))
sketch4.addConstraint(Sketcher.Constraint("DistanceY", 0, 2, 0, 1, 30.0))
sketch4.addConstraint(Sketcher.Constraint("Diameter", 6, 9.375))
sketch4.addConstraint(Sketcher.Constraint("DistanceY", -1, 1, 5, 3, 19.999999))
sketch4.addConstraint(Sketcher.Constraint("DistanceY", -1, 1, 6, 3, 10.0))
sketch4.addConstraint(Sketcher.Constraint("DistanceX", -1, 1, 3, 3, 73.499999))
sketch4.addConstraint(Sketcher.Constraint("DistanceX", 6, 3, -1, 1, 50.8))
sketch4.addConstraint(Sketcher.Constraint("DistanceX", 4, 2, 4, 1, 146.988))
sketch4.addConstraint(Sketcher.Constraint("DistanceX", -1, 1, 3, 2, 73.487973))
pad4 = body6.newObject("PartDesign::Pad", "Pad003")
pad4.Profile = sketch4
pad4.Length = 3
doc.recompute()

boolean4 = body6.newObject("PartDesign::Boolean", "Boolean003")
boolean4.Type = "Cut"
boolean4.addObjects([body5])
doc.recompute()

boolean5 = body6.newObject("PartDesign::Boolean", "Boolean004")
boolean5.Type = "Fuse"
boolean5.addObjects([body4])

doc.recompute()
